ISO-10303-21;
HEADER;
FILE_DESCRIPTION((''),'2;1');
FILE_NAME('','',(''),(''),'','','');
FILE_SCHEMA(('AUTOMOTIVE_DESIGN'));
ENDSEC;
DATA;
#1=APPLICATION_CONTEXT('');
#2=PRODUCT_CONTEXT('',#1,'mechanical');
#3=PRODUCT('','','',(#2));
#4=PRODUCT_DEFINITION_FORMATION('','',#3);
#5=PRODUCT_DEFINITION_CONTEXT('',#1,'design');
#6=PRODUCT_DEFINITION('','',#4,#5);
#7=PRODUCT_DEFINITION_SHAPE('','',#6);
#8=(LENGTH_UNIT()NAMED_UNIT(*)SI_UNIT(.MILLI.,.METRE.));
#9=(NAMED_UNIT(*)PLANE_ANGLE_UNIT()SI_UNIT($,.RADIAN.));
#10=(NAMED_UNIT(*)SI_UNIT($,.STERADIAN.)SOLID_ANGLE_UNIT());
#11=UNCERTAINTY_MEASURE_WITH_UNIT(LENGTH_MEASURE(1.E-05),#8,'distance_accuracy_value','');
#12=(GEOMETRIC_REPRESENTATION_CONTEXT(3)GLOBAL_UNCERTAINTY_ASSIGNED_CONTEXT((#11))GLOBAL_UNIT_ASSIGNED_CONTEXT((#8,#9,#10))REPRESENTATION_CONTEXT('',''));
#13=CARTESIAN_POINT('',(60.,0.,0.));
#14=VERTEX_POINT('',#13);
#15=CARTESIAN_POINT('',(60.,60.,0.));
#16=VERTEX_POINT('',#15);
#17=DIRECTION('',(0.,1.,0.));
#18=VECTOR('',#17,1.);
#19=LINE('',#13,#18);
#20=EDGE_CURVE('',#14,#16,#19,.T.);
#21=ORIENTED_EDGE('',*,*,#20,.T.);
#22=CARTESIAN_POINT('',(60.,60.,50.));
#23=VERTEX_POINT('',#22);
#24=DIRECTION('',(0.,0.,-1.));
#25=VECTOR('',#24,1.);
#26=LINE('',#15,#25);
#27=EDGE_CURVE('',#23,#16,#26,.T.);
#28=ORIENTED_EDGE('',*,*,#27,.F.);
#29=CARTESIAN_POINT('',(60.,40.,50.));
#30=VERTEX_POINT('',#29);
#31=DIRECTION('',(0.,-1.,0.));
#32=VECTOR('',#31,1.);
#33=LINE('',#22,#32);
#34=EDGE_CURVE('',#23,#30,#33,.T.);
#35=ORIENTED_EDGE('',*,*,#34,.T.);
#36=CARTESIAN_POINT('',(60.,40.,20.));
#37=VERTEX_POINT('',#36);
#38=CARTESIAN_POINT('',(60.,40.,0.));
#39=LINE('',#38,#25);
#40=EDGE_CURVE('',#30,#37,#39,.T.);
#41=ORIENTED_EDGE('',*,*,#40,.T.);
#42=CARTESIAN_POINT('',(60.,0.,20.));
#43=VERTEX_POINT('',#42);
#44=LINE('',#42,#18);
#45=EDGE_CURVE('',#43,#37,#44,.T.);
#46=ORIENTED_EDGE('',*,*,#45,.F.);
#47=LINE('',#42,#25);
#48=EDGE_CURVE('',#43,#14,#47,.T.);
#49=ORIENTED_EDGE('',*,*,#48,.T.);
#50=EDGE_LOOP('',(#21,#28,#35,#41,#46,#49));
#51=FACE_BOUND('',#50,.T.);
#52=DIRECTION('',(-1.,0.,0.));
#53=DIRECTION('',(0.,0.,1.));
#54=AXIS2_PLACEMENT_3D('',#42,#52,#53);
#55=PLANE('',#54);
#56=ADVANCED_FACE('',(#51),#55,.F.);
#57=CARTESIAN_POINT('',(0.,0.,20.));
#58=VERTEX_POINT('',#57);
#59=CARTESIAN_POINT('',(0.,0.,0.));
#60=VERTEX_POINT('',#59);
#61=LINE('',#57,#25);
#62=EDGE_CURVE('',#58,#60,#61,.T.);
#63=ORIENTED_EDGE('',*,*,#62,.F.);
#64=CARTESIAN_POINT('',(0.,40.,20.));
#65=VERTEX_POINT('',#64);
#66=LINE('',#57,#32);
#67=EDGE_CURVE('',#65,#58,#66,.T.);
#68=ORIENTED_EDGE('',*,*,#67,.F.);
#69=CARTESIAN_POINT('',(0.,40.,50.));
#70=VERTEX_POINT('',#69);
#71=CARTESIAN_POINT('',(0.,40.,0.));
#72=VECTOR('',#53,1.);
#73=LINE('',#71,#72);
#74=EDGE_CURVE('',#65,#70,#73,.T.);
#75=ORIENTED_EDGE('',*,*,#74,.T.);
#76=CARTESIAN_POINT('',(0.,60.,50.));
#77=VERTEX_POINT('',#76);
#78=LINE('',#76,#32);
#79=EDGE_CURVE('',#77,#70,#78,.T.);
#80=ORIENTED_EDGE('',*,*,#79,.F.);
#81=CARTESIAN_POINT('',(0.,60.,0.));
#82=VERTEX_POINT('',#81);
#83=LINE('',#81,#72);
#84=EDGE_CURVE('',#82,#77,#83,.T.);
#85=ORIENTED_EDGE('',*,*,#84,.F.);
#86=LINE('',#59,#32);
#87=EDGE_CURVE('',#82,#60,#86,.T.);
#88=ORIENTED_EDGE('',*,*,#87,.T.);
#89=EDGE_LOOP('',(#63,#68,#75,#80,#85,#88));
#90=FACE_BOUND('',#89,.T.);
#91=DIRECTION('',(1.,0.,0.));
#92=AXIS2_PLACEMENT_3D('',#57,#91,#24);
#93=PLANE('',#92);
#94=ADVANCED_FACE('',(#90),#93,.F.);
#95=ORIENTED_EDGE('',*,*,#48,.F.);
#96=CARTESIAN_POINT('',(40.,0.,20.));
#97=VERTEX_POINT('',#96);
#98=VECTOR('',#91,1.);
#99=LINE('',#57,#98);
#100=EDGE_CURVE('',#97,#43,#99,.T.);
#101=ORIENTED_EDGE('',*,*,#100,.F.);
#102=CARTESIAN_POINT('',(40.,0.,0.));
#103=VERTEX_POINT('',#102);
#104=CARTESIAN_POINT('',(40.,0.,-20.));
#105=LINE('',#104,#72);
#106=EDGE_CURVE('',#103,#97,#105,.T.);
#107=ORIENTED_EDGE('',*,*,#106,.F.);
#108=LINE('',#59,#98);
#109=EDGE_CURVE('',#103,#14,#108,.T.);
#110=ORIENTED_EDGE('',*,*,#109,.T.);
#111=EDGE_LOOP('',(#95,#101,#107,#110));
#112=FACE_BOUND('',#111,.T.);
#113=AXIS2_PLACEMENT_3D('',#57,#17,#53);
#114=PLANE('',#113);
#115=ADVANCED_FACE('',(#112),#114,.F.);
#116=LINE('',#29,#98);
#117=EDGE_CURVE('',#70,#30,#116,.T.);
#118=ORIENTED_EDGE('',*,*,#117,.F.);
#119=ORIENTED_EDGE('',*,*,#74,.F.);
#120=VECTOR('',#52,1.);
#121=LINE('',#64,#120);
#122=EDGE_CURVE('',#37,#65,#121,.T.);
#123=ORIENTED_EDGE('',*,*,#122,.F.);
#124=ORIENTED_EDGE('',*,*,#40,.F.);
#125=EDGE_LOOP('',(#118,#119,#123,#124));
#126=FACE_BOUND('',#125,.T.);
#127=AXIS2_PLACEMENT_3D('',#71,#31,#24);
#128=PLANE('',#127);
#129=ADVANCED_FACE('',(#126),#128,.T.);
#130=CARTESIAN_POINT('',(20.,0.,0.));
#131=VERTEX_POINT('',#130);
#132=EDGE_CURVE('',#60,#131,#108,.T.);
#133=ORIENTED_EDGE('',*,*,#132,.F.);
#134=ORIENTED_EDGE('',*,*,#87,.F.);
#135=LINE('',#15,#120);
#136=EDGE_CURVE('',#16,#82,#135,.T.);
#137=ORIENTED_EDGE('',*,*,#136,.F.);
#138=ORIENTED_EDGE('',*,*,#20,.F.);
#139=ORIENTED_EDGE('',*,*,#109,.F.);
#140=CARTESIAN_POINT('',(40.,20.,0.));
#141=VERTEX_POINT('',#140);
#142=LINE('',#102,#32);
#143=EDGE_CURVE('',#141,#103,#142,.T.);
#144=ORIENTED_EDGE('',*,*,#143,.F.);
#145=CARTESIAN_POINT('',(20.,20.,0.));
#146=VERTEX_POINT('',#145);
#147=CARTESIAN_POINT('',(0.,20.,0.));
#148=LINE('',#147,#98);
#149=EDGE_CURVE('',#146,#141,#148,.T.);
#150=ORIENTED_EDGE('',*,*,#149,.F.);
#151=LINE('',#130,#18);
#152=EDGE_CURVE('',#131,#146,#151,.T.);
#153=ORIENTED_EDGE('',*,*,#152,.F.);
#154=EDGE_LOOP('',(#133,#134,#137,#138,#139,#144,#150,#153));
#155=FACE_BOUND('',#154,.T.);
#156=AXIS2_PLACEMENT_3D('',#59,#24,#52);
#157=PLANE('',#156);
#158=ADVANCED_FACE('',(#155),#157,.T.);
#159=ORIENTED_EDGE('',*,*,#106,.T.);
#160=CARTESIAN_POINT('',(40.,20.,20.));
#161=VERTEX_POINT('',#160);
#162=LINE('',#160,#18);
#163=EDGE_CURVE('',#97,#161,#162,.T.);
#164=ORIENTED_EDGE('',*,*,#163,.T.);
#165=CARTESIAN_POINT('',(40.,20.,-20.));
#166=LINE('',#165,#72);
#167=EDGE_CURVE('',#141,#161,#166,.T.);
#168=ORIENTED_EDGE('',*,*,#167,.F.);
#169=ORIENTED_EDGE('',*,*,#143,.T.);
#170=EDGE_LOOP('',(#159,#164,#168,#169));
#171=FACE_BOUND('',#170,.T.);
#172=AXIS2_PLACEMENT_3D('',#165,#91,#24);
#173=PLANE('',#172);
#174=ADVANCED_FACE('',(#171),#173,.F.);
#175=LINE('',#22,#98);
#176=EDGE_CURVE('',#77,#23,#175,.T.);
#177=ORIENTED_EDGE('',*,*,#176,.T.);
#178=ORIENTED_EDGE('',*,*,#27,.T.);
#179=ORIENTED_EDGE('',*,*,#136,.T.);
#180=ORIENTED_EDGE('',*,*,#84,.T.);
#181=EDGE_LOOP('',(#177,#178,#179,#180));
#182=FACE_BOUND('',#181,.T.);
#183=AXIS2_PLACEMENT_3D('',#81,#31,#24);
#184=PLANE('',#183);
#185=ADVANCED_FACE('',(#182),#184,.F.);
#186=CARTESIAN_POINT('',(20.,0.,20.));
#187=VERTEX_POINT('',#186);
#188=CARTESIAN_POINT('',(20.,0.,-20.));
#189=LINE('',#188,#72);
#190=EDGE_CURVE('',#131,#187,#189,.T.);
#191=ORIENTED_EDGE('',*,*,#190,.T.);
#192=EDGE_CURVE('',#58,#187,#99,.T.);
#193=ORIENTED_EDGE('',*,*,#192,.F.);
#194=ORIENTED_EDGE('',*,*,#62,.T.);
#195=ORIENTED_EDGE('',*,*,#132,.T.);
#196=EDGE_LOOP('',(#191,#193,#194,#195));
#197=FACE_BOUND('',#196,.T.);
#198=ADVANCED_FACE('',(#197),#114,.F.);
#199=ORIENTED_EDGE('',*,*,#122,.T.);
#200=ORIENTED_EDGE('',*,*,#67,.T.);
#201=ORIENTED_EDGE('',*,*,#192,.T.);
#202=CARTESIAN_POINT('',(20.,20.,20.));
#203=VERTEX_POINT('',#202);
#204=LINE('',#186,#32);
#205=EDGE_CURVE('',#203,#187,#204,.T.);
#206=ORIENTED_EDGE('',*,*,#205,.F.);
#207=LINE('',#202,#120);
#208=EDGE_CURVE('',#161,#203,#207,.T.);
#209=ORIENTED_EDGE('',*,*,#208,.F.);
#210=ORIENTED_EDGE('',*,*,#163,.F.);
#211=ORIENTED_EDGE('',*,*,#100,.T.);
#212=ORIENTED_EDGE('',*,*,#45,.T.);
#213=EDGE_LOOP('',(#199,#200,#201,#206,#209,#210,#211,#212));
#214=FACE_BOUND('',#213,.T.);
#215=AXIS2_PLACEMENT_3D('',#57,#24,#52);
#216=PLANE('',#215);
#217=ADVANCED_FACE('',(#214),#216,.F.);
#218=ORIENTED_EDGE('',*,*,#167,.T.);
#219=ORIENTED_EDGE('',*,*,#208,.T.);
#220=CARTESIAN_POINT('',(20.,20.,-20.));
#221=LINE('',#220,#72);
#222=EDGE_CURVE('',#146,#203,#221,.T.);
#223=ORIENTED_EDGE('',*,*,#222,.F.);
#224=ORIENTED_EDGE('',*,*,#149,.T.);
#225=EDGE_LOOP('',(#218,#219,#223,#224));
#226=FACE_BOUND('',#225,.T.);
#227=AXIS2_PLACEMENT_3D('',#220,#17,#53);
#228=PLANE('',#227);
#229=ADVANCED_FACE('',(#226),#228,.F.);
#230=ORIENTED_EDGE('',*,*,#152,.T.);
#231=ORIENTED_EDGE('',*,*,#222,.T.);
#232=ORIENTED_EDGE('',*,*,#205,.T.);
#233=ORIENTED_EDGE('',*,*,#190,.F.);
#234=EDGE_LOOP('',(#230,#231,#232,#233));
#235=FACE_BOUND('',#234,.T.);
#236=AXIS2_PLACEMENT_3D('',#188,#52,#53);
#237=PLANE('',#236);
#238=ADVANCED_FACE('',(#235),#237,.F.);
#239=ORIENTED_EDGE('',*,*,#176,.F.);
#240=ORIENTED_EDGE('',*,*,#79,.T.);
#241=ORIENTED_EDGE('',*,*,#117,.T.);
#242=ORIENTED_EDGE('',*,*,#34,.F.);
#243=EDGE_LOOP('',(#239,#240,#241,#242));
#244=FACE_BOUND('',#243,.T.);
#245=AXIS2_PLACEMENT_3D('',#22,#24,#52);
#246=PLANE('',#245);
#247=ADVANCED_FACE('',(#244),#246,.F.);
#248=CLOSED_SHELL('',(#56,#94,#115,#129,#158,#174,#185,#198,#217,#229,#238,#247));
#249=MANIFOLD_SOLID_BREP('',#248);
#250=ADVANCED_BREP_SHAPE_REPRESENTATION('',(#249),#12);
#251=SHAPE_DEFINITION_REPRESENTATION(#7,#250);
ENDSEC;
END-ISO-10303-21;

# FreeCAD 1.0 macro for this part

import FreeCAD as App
import Part
import Sketcher


def add_polygon(sketch, points):
    """Adds a closed chain of lines whose ends are joined by coincident constraints."""
    first, n = sketch.GeometryCount, len(points)
    for a, b in zip(points, points[1:] + points[:1]):
        sketch.addGeometry(Part.LineSegment(App.Vector(*a, 0), App.Vector(*b, 0)), False)
    for i in range(n):
        sketch.addConstraint(Sketcher.Constraint("Coincident", first + i, 2, first + (i + 1) % n, 1))

doc = App.newDocument("Part")
params = doc.addObject("Spreadsheet::Sheet", "Params")
for row, (alias, value) in enumerate([
    ("sketch1_width", "60 mm"),
    ("sketch1_height", "40 mm"),
    ("pad1_length", "20 mm"),
    ("sketch2_width", "20 mm"),
    ("pocket1_length", "40 mm"),
    ("sketch3_width", "60 mm"),
    ("sketch3_height", "50 mm"),
    ("pad2_length", "20 mm"),
], start=1):
    params.set(f"A{row}", alias)
    params.set(f"B{row}", "=" + value)
    params.setAlias(f"B{row}", alias)

body = doc.addObject("PartDesign::Body", "Body")

sketch1 = body.newObject("Sketcher::SketchObject", "Sketch")
sketch1.AttachmentSupport = (doc.getObject("XY_Plane"), [""])
sketch1.MapMode = "FlatFace"
add_polygon(sketch1, [(0, 40), (0, 0), (60, 0), (60, 40)])
sketch1.addConstraint([
    Sketcher.Constraint("Vertical", 0),
    Sketcher.Constraint("Horizontal", 1),
    Sketcher.Constraint("Vertical", 2),
    Sketcher.Constraint("Horizontal", 3),
    Sketcher.Constraint("Coincident", 0, 2, -1, 1),
    Sketcher.Constraint("DistanceX", 1, 1, 1, 2, 60.0),
    Sketcher.Constraint("DistanceY", 0, 2, 0, 1, 40.0),
])
sketch1.setExpression("Constraints[9]", "Params.sketch1_width")
sketch1.setExpression("Constraints[10]", "Params.sketch1_height")
pad1 = body.newObject("PartDesign::Pad", "Pad")
pad1.Profile = sketch1
pad1.setExpression("Length", "Params.pad1_length")

sketch2 = body.newObject("Sketcher::SketchObject", "Sketch001")
sketch2.AttachmentSupport = (doc.getObject("XY_Plane"), [""])
sketch2.MapMode = "FlatFace"
sketch2.AttachmentOffset = App.Placement(App.Vector(0, 0, 20), App.Rotation())
add_polygon(sketch2, [(20, 20), (20, 0), (40, 0), (40, 20)])
sketch2.addConstraint([
    Sketcher.Constraint("Vertical", 0),
    Sketcher.Constraint("Horizontal", 1),
    Sketcher.Constraint("Vertical", 2),
    Sketcher.Constraint("Horizontal", 3),
    Sketcher.Constraint("PointOnObject", 0, 2, -1),
    Sketcher.Constraint("Equal", 3, 0),
    Sketcher.Constraint("DistanceX", 1, 1, 1, 2, 20.0),
    Sketcher.Constraint("DistanceX", -1, 1, 0, 2, 20.0),
])
sketch2.setExpression("Constraints[10]", "Params.sketch2_width")
pocket1 = body.newObject("PartDesign::Pocket", "Pocket")
pocket1.Profile = sketch2
pocket1.setExpression("Length", "Params.pocket1_length")

sketch3 = body.newObject("Sketcher::SketchObject", "Sketch002")
sketch3.AttachmentSupport = (doc.getObject("XZ_Plane"), [""])
sketch3.MapMode = "FlatFace"
sketch3.AttachmentOffset = App.Placement(App.Vector(0, 0, -40), App.Rotation())
add_polygon(sketch3, [(0, 0), (0, 50), (60, 50), (60, 0)])
sketch3.addConstraint([
    Sketcher.Constraint("Vertical", 0),
    Sketcher.Constraint("Horizontal", 1),
    Sketcher.Constraint("Vertical", 2),
    Sketcher.Constraint("Horizontal", 3),
    Sketcher.Constraint("Coincident", 3, 2, -1, 1),
    Sketcher.Constraint("DistanceX", 1, 1, 1, 2, 60.0),
    Sketcher.Constraint("DistanceY", 0, 1, 0, 2, 50.0),
])
sketch3.setExpression("Constraints[9]", "Params.sketch3_width")
sketch3.setExpression("Constraints[10]", "Params.sketch3_height")
pad2 = body.newObject("PartDesign::Pad", "Pad001")
pad2.Profile = sketch3
pad2.setExpression("Length", "Params.pad2_length")
pad2.Reversed = True

doc.recompute()
